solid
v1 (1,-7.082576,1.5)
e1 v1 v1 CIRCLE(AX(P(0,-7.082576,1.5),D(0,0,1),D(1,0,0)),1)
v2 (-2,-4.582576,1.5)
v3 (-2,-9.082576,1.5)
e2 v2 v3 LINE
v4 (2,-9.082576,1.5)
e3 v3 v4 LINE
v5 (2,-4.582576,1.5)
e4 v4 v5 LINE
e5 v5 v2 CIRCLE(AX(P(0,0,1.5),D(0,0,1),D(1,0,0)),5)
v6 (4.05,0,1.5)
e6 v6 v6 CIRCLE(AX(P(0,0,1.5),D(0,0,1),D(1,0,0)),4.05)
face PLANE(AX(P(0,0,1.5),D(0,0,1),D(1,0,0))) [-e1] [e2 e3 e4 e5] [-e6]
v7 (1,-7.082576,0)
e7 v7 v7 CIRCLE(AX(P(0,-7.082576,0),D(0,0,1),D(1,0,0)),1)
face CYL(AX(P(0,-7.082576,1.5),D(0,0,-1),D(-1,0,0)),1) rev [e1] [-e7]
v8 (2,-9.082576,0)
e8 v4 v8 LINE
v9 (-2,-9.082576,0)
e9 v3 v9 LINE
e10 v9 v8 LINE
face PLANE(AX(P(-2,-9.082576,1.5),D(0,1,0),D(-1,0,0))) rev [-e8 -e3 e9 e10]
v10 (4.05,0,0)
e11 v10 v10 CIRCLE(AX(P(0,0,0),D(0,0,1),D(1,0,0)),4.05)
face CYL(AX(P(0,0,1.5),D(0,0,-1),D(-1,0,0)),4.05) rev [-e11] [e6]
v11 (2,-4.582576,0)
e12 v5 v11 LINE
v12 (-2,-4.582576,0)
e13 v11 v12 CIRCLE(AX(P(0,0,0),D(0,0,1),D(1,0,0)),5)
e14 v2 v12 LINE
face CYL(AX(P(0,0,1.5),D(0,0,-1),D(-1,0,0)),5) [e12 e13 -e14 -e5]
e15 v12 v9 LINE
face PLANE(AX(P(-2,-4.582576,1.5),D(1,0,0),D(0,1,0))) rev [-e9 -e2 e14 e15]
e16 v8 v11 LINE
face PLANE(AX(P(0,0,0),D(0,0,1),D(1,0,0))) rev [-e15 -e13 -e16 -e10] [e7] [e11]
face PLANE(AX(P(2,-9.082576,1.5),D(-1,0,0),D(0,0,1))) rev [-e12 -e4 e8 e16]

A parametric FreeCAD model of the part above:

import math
import FreeCAD as App
import Part
import Sketcher

V = App.Vector

doc = App.newDocument("Part")
params = doc.addObject("Spreadsheet::Sheet", "Params")
for row, (alias, value) in enumerate([
    ("sketch1_diameter", "2 mm"),
    ("sketch1_radius", "5 mm"),
    ("sketch1_diameter2", "8.1 mm"),
    ("sketch1_width", "4 mm"),
    ("sketch1_height", "4.5 mm"),
    ("pad1_length", "1.5 mm"),
], start=1):
    params.set(f"A{row}", alias)
    params.set(f"B{row}", "=" + value)
    params.setAlias(f"B{row}", alias)

body = doc.addObject("PartDesign::Body", "Body")

# Sketch on XY plane
sketch1 = body.newObject("Sketcher::SketchObject", "Sketch")
sketch1.AttachmentSupport = (doc.getObject("XY_Plane"), [""])
sketch1.MapMode = "FlatFace"
sketch1.addGeometry([
    Part.LineSegment(V(-2, -9.082576, 0), V(2, -9.082576, 0)),  # 0
    Part.LineSegment(V(2, -9.082576, 0), V(2, -4.582576, 0)),  # 1
    Part.ArcOfCircle(Part.Circle(V(0, 0, 0), V(0, 0, 1), 5), math.radians(-66.421822), math.radians(246.421822)),  # 2
    Part.LineSegment(V(-2, -4.582576, 0), V(-2, -9.082576, 0)),  # 3
    Part.Circle(V(0, -7.082576, 0), V(0, 0, 1), 1),  # 4
    Part.Circle(V(0, 0, 0), V(0, 0, 1), 4.05),  # 5
], False)
sketch1.addConstraint([
    Sketcher.Constraint("Coincident", 0, 2, 1, 1),
    Sketcher.Constraint("Coincident", 1, 2, 2, 1),
    Sketcher.Constraint("Coincident", 2, 2, 3, 1),
    Sketcher.Constraint("Coincident", 3, 2, 0, 1),
    Sketcher.Constraint("Horizontal", 0),
    Sketcher.Constraint("Vertical", 1),
    Sketcher.Constraint("Vertical", 3),
    Sketcher.Constraint("Coincident", 2, 3, -1, 1),
    Sketcher.Constraint("Coincident", 5, 3, -1, 1),
    Sketcher.Constraint("PointOnObject", 4, 3, -2),
    Sketcher.Constraint("Horizontal", 1, 2, 2, 2),
    Sketcher.Constraint("Diameter", 4, 2.0),
    Sketcher.Constraint("Radius", 2, 5.0),
    Sketcher.Constraint("Diameter", 5, 8.1),
    Sketcher.Constraint("DistanceX", 0, 1, 0, 2, 4.0),
    Sketcher.Constraint("DistanceY", 1, 1, 1, 2, 4.5),
    Sketcher.Constraint("DistanceY", 0, 2, 4, 3, 2.0),
])
sketch1.setExpression("Constraints[11]", "Params.sketch1_diameter")
sketch1.setExpression("Constraints[12]", "Params.sketch1_radius")
sketch1.setExpression("Constraints[13]", "Params.sketch1_diameter2")
sketch1.setExpression("Constraints[14]", "Params.sketch1_width")
sketch1.setExpression("Constraints[15]", "Params.sketch1_height")
pad1 = body.newObject("PartDesign::Pad", "Pad")
pad1.Profile = sketch1
pad1.setExpression("Length", "Params.pad1_length")

doc.recompute()
